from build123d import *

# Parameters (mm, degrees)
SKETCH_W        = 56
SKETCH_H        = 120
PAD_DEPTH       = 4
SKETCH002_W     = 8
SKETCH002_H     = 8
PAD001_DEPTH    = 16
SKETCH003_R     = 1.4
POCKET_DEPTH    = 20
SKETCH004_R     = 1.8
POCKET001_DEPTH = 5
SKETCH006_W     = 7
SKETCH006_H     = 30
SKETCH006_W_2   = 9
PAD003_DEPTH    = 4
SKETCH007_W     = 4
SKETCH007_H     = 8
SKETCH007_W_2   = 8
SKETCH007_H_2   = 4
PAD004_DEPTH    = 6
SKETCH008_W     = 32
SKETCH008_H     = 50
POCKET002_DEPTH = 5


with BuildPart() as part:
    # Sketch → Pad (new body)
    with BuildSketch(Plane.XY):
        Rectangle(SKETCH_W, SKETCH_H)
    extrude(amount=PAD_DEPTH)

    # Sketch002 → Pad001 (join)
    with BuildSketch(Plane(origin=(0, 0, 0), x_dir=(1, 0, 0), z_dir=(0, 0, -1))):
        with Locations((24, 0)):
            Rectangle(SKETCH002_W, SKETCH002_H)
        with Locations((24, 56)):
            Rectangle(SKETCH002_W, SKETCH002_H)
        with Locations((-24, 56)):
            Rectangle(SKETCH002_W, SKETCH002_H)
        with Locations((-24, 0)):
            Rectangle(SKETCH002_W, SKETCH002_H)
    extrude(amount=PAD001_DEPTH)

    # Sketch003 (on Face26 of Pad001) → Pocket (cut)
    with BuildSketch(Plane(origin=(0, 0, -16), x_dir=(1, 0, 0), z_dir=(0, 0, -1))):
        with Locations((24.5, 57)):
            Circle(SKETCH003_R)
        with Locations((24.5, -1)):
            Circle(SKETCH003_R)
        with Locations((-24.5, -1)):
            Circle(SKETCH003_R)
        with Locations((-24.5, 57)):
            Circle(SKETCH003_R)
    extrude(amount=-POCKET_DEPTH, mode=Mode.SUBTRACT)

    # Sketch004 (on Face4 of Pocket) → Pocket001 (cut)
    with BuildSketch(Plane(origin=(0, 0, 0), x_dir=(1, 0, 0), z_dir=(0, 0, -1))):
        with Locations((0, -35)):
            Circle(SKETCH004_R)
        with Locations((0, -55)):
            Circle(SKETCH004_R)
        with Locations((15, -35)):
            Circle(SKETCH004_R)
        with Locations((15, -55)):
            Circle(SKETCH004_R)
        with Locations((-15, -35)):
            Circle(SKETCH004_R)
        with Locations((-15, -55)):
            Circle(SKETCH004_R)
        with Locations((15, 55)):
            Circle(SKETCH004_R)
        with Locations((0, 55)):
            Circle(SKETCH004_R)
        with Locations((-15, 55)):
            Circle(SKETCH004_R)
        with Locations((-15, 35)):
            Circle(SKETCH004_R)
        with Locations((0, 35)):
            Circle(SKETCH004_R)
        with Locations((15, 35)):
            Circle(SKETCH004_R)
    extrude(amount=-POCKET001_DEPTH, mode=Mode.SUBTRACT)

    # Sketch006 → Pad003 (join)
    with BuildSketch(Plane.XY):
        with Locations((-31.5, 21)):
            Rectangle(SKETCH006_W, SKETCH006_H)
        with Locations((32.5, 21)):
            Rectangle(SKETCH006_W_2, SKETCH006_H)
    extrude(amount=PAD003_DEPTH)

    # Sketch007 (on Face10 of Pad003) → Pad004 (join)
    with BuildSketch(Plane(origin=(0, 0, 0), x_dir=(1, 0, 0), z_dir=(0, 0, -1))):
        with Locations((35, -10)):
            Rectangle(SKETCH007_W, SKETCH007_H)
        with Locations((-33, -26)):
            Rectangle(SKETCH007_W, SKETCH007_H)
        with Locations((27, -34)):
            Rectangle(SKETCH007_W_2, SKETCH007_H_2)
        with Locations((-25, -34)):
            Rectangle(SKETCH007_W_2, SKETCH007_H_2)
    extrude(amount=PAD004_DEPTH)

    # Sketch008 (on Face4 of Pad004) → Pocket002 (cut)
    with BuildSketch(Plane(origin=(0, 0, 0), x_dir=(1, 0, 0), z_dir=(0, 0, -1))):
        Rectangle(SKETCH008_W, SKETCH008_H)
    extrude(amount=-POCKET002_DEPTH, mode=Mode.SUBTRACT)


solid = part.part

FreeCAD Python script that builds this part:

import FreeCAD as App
import Part
import Sketcher

V = App.Vector
Q = App.Units.Quantity


def add_polygon(sketch, points):
    """Adds a closed chain of lines whose ends are joined by coincident constraints."""
    first, n = sketch.GeometryCount, len(points)
    for a, b in zip(points, points[1:] + points[:1]):
        sketch.addGeometry(Part.LineSegment(App.Vector(*a, 0), App.Vector(*b, 0)), False)
    for i in range(n):
        sketch.addConstraint(Sketcher.Constraint("Coincident", first + i, 2, first + (i + 1) % n, 1))

doc = App.newDocument("Part")
body = doc.addObject("PartDesign::Body", "Body")

# Sketch on XY plane
sketch1 = body.newObject("Sketcher::SketchObject", "Sketch")
sketch1.AttachmentSupport = (doc.getObject("XY_Plane"), [""])
sketch1.MapMode = "FlatFace"
add_polygon(sketch1, [(-28, 60), (-28, -60), (28, -60), (28, 60)])  # lines 0-3
sketch1.addConstraint(Sketcher.Constraint("Vertical", 0))
sketch1.addConstraint(Sketcher.Constraint("Horizontal", 1))
sketch1.addConstraint(Sketcher.Constraint("Vertical", 2))
sketch1.addConstraint(Sketcher.Constraint("Horizontal", 3))
sketch1.addConstraint(Sketcher.Constraint("Symmetric", 0, 2, 2, 2, -1, 1))
sketch1.addConstraint(Sketcher.Constraint("DistanceX", 1, 1, 1, 2, Q("56 mm")))
sketch1.addConstraint(Sketcher.Constraint("DistanceY", 0, 2, 0, 1, Q("120 mm")))
pad1 = body.newObject("PartDesign::Pad", "Pad")
pad1.Profile = sketch1
pad1.Length = 4

# Sketch on XY plane
sketch2 = body.newObject("Sketcher::SketchObject", "Sketch001")
sketch2.AttachmentSupport = (doc.getObject("XY_Plane"), [""])
sketch2.MapMode = "FlatFace"
add_polygon(sketch2, [(20, -4), (20, 4), (28, 4), (28, -4)])  # lines 0-3
add_polygon(sketch2, [(20, -60), (20, -52), (28, -52), (28, -60)])  # lines 4-7
add_polygon(sketch2, [(-28, -60), (-28, -52), (-20, -52), (-20, -60)])  # lines 8-11
add_polygon(sketch2, [(-28, -4), (-28, 4), (-20, 4), (-20, -4)])  # lines 12-15
sketch2.addConstraint(Sketcher.Constraint("Vertical", 0))
sketch2.addConstraint(Sketcher.Constraint("Horizontal", 1))
sketch2.addConstraint(Sketcher.Constraint("Vertical", 2))
sketch2.addConstraint(Sketcher.Constraint("Horizontal", 3))
sketch2.addConstraint(Sketcher.Constraint("Vertical", 4))
sketch2.addConstraint(Sketcher.Constraint("Horizontal", 5))
sketch2.addConstraint(Sketcher.Constraint("Vertical", 6))
sketch2.addConstraint(Sketcher.Constraint("Horizontal", 7))
sketch2.addConstraint(Sketcher.Constraint("Vertical", 8))
sketch2.addConstraint(Sketcher.Constraint("Horizontal", 9))
sketch2.addConstraint(Sketcher.Constraint("Vertical", 10))
sketch2.addConstraint(Sketcher.Constraint("Horizontal", 11))
sketch2.addConstraint(Sketcher.Constraint("Vertical", 12))
sketch2.addConstraint(Sketcher.Constraint("Horizontal", 13))
sketch2.addConstraint(Sketcher.Constraint("Vertical", 14))
sketch2.addConstraint(Sketcher.Constraint("Horizontal", 15))
sketch2.addConstraint(Sketcher.Constraint("Symmetric", 2, 2, 12, 2, -1, 1))
sketch2.addConstraint(Sketcher.Constraint("Symmetric", 0, 2, 14, 2, -1, 1))
sketch2.addConstraint(Sketcher.Constraint("Symmetric", 5, 2, 8, 2, -2))
sketch2.addConstraint(Sketcher.Constraint("Symmetric", 7, 2, 10, 2, -2))
sketch2.addConstraint(Sketcher.Constraint("Horizontal", 1, 2, 12, 2))
sketch2.addConstraint(Sketcher.Constraint("Vertical", 3, 2, 4, 2))
sketch2.addConstraint(Sketcher.Constraint("Vertical", 2, 2, 5, 2))
sketch2.addConstraint(Sketcher.Constraint("Equal", 15, 0))
sketch2.addConstraint(Sketcher.Constraint("Equal", 2, 4))
sketch2.addConstraint(Sketcher.Constraint("DistanceX", 1, 1, 1, 2, Q("8 mm")))
sketch2.addConstraint(Sketcher.Constraint("DistanceX", -1, 1, 0, 2, Q("20 mm")))
sketch2.addConstraint(Sketcher.Constraint("DistanceY", 4, 2, -1, 1, Q("52 mm")))
pad2 = body.newObject("PartDesign::Pad", "Pad001")
pad2.Profile = sketch2
pad2.Length = 16
pad2.Reversed = True

# Sketch on XY plane
sketch3 = body.newObject("Sketcher::SketchObject", "Sketch002")
sketch3.AttachmentSupport = (doc.getObject("XY_Plane"), [""])
sketch3.MapMode = "FlatFace"
sketch3.AttachmentOffset = App.Placement(V(0, 0, -16), App.Rotation())
sketch3.addGeometry(Part.Circle(V(24.5, -57, 0), V(0, 0, 1), 1.4), False)
sketch3.addGeometry(Part.Circle(V(24.5, 1, 0), V(0, 0, 1), 1.4), False)
sketch3.addGeometry(Part.Circle(V(-24.5, 1, 0), V(0, 0, 1), 1.4), False)
sketch3.addGeometry(Part.Circle(V(-24.5, -57, 0), V(0, 0, 1), 1.4), False)
sketch3.addConstraint(Sketcher.Constraint("Equal", 0, 1))
sketch3.addConstraint(Sketcher.Constraint("Equal", 1, 2))
sketch3.addConstraint(Sketcher.Constraint("Equal", 2, 3))
sketch3.addConstraint(Sketcher.Constraint("Symmetric", 1, 3, 2, 3, -2))
sketch3.addConstraint(Sketcher.Constraint("Symmetric", 0, 3, 3, 3, -2))
sketch3.addConstraint(Sketcher.Constraint("Vertical", 0, 3, 1, 3))
sketch3.addConstraint(Sketcher.Constraint("Diameter", 0, Q("2.8 mm")))
sketch3.addConstraint(Sketcher.Constraint("DistanceY", 0, 3, -1, 1, Q("57 mm")))
sketch3.addConstraint(Sketcher.Constraint("DistanceY", -1, 1, 1, 3, Q("1 mm")))
sketch3.addConstraint(Sketcher.Constraint("DistanceX", 2, 3, 1, 3, Q("49 mm")))
pocket1 = body.newObject("PartDesign::Pocket", "Pocket")
pocket1.Profile = sketch3
pocket1.Length = 20
pocket1.Reversed = True

# Sketch on XY plane
sketch4 = body.newObject("Sketcher::SketchObject", "Sketch003")
sketch4.AttachmentSupport = (doc.getObject("XY_Plane"), [""])
sketch4.MapMode = "FlatFace"
sketch4.addGeometry(Part.Circle(V(0, 35, 0), V(0, 0, 1), 1.8), False)
sketch4.addGeometry(Part.Circle(V(0, 55, 0), V(0, 0, 1), 1.8), False)
sketch4.addGeometry(Part.Circle(V(15, 35, 0), V(0, 0, 1), 1.8), False)
sketch4.addGeometry(Part.Circle(V(15, 55, 0), V(0, 0, 1), 1.8), False)
sketch4.addGeometry(Part.Circle(V(-15, 35, 0), V(0, 0, 1), 1.8), False)
sketch4.addGeometry(Part.Circle(V(-15, 55, 0), V(0, 0, 1), 1.8), False)
sketch4.addGeometry(Part.Circle(V(15, -55, 0), V(0, 0, 1), 1.8), False)
sketch4.addGeometry(Part.Circle(V(0, -55, 0), V(0, 0, 1), 1.8), False)
sketch4.addGeometry(Part.Circle(V(-15, -55, 0), V(0, 0, 1), 1.8), False)
sketch4.addGeometry(Part.Circle(V(-15, -35, 0), V(0, 0, 1), 1.8), False)
sketch4.addGeometry(Part.Circle(V(0, -35, 0), V(0, 0, 1), 1.8), False)
sketch4.addGeometry(Part.Circle(V(15, -35, 0), V(0, 0, 1), 1.8), False)
sketch4.addConstraint(Sketcher.Constraint("Equal", 0, 1))
sketch4.addConstraint(Sketcher.Constraint("Equal", 1, 2))
sketch4.addConstraint(Sketcher.Constraint("Equal", 2, 3))
sketch4.addConstraint(Sketcher.Constraint("Equal", 3, 4))
sketch4.addConstraint(Sketcher.Constraint("Equal", 4, 5))
sketch4.addConstraint(Sketcher.Constraint("Equal", 5, 6))
sketch4.addConstraint(Sketcher.Constraint("Equal", 6, 7))
sketch4.addConstraint(Sketcher.Constraint("Equal", 7, 8))
sketch4.addConstraint(Sketcher.Constraint("Equal", 8, 9))
sketch4.addConstraint(Sketcher.Constraint("Equal", 9, 10))
sketch4.addConstraint(Sketcher.Constraint("Equal", 10, 11))
sketch4.addConstraint(Sketcher.Constraint("Symmetric", 5, 3, 6, 3, -1, 1))
sketch4.addConstraint(Sketcher.Constraint("Symmetric", 1, 3, 7, 3, -1, 1))
sketch4.addConstraint(Sketcher.Constraint("Symmetric", 3, 3, 8, 3, -1, 1))
sketch4.addConstraint(Sketcher.Constraint("Symmetric", 2, 3, 9, 3, -1, 1))
sketch4.addConstraint(Sketcher.Constraint("Symmetric", 0, 3, 10, 3, -1, 1))
sketch4.addConstraint(Sketcher.Constraint("Symmetric", 4, 3, 11, 3, -1, 1))
sketch4.addConstraint(Sketcher.Constraint("Symmetric", 2, 3, 4, 3, -2))
sketch4.addConstraint(Sketcher.Constraint("Symmetric", 3, 3, 5, 3, -2))
sketch4.addConstraint(Sketcher.Constraint("PointOnObject", 0, 3, -2))
sketch4.addConstraint(Sketcher.Constraint("PointOnObject", 1, 3, -2))
sketch4.addConstraint(Sketcher.Constraint("Horizontal", 0, 3, 2, 3))
sketch4.addConstraint(Sketcher.Constraint("Horizontal", 1, 3, 3, 3))
sketch4.addConstraint(Sketcher.Constraint("Vertical", 2, 3, 3, 3))
sketch4.addConstraint(Sketcher.Constraint("Diameter", 0, Q("3.6 mm")))
sketch4.addConstraint(Sketcher.Constraint("DistanceY", -1, 1, 0, 3, Q("35 mm")))
sketch4.addConstraint(Sketcher.Constraint("DistanceY", -1, 1, 1, 3, Q("55 mm")))
sketch4.addConstraint(Sketcher.Constraint("DistanceX", -1, 1, 2, 3, Q("15 mm")))
pocket2 = body.newObject("PartDesign::Pocket", "Pocket001")
pocket2.Profile = sketch4
pocket2.Length = 5
pocket2.Reversed = True

# Sketch on XY plane
sketch5 = body.newObject("Sketcher::SketchObject", "Sketch004")
sketch5.AttachmentSupport = (doc.getObject("XY_Plane"), [""])
sketch5.MapMode = "FlatFace"
add_polygon(sketch5, [(-35, 36), (-35, 6), (-28, 6), (-28, 36)])  # lines 0-3
add_polygon(sketch5, [(28, 36), (28, 6), (37, 6), (37, 36)])  # lines 4-7
sketch5.addConstraint(Sketcher.Constraint("Vertical", 0))
sketch5.addConstraint(Sketcher.Constraint("Horizontal", 1))
sketch5.addConstraint(Sketcher.Constraint("Vertical", 2))
sketch5.addConstraint(Sketcher.Constraint("Horizontal", 3))
sketch5.addConstraint(Sketcher.Constraint("Vertical", 4))
sketch5.addConstraint(Sketcher.Constraint("Horizontal", 5))
sketch5.addConstraint(Sketcher.Constraint("Vertical", 6))
sketch5.addConstraint(Sketcher.Constraint("Horizontal", 7))
sketch5.addConstraint(Sketcher.Constraint("Symmetric", 1, 2, 4, 2, -2))
sketch5.addConstraint(Sketcher.Constraint("Horizontal", 3, 2, 6, 2))
sketch5.addConstraint(Sketcher.Constraint("DistanceX", 1, 1, 1, 2, Q("7 mm")))
sketch5.addConstraint(Sketcher.Constraint("DistanceX", 5, 1, 5, 2, Q("9 mm")))
sketch5.addConstraint(Sketcher.Constraint("DistanceY", 0, 2, 0, 1, Q("30 mm")))
sketch5.addConstraint(Sketcher.Constraint("DistanceX", 0, 2, -1, 1, Q("35 mm")))
sketch5.addConstraint(Sketcher.Constraint("DistanceY", -1, 1, 0, 2, Q("6 mm")))
pad3 = body.newObject("PartDesign::Pad", "Pad002")
pad3.Profile = sketch5
pad3.Length = 4

# Sketch on XY plane
sketch6 = body.newObject("Sketcher::SketchObject", "Sketch005")
sketch6.AttachmentSupport = (doc.getObject("XY_Plane"), [""])
sketch6.MapMode = "FlatFace"
add_polygon(sketch6, [(33, 6), (33, 14), (37, 14), (37, 6)])  # lines 0-3
add_polygon(sketch6, [(-35, 22), (-35, 30), (-31, 30), (-31, 22)])  # lines 4-7
add_polygon(sketch6, [(23, 32), (23, 36), (31, 36), (31, 32)])  # lines 8-11
add_polygon(sketch6, [(-29, 32), (-29, 36), (-21, 36), (-21, 32)])  # lines 12-15
sketch6.addConstraint(Sketcher.Constraint("Vertical", 0))
sketch6.addConstraint(Sketcher.Constraint("Horizontal", 1))
sketch6.addConstraint(Sketcher.Constraint("Vertical", 2))
sketch6.addConstraint(Sketcher.Constraint("Horizontal", 3))
sketch6.addConstraint(Sketcher.Constraint("Vertical", 4))
sketch6.addConstraint(Sketcher.Constraint("Horizontal", 5))
sketch6.addConstraint(Sketcher.Constraint("Vertical", 6))
sketch6.addConstraint(Sketcher.Constraint("Horizontal", 7))
sketch6.addConstraint(Sketcher.Constraint("Vertical", 8))
sketch6.addConstraint(Sketcher.Constraint("Horizontal", 9))
sketch6.addConstraint(Sketcher.Constraint("Vertical", 10))
sketch6.addConstraint(Sketcher.Constraint("Horizontal", 11))
sketch6.addConstraint(Sketcher.Constraint("Vertical", 12))
sketch6.addConstraint(Sketcher.Constraint("Horizontal", 13))
sketch6.addConstraint(Sketcher.Constraint("Vertical", 14))
sketch6.addConstraint(Sketcher.Constraint("Horizontal", 15))
sketch6.addConstraint(Sketcher.Constraint("Horizontal", 9, 2, 12, 2))
sketch6.addConstraint(Sketcher.Constraint("Horizontal", 11, 2, 14, 2))
sketch6.addConstraint(Sketcher.Constraint("Equal", 3, 5))
sketch6.addConstraint(Sketcher.Constraint("Equal", 11, 13))
sketch6.addConstraint(Sketcher.Constraint("Equal", 15, 0))
sketch6.addConstraint(Sketcher.Constraint("Equal", 2, 4))
sketch6.addConstraint(Sketcher.Constraint("Equal", 7, 8))
sketch6.addConstraint(Sketcher.Constraint("DistanceX", 1, 1, 1, 2, Q("4 mm")))
sketch6.addConstraint(Sketcher.Constraint("DistanceX", 9, 1, 9, 2, Q("8 mm")))
sketch6.addConstraint(Sketcher.Constraint("DistanceX", -1, 1, 0, 2, Q("33 mm")))
sketch6.addConstraint(Sketcher.Constraint("DistanceY", -1, 1, 0, 2, Q("14 mm")))
sketch6.addConstraint(Sketcher.Constraint("DistanceX", 4, 2, -1, 1, Q("35 mm")))
sketch6.addConstraint(Sketcher.Constraint("DistanceY", -1, 1, 4, 2, Q("30 mm")))
sketch6.addConstraint(Sketcher.Constraint("DistanceX", -1, 1, 8, 2, Q("23 mm")))
sketch6.addConstraint(Sketcher.Constraint("DistanceY", -1, 1, 8, 2, Q("36 mm")))
sketch6.addConstraint(Sketcher.Constraint("DistanceX", 12, 2, -1, 1, Q("29 mm")))
pad4 = body.newObject("PartDesign::Pad", "Pad003")
pad4.Profile = sketch6
pad4.Length = 6
pad4.Reversed = True

# Sketch on XY plane
sketch7 = body.newObject("Sketcher::SketchObject", "Sketch006")
sketch7.AttachmentSupport = (doc.getObject("XY_Plane"), [""])
sketch7.MapMode = "FlatFace"
add_polygon(sketch7, [(-16, -25), (-16, 25), (16, 25), (16, -25)])  # lines 0-3
sketch7.addConstraint(Sketcher.Constraint("Vertical", 0))
sketch7.addConstraint(Sketcher.Constraint("Horizontal", 1))
sketch7.addConstraint(Sketcher.Constraint("Vertical", 2))
sketch7.addConstraint(Sketcher.Constraint("Horizontal", 3))
sketch7.addConstraint(Sketcher.Constraint("Symmetric", 0, 2, 2, 2, -1, 1))
sketch7.addConstraint(Sketcher.Constraint("DistanceX", 1, 1, 1, 2, Q("32 mm")))
sketch7.addConstraint(Sketcher.Constraint("DistanceY", 0, 1, 0, 2, Q("50 mm")))
pocket3 = body.newObject("PartDesign::Pocket", "Pocket002")
pocket3.Profile = sketch7
pocket3.Length = 5
pocket3.Reversed = True

doc.recompute()
